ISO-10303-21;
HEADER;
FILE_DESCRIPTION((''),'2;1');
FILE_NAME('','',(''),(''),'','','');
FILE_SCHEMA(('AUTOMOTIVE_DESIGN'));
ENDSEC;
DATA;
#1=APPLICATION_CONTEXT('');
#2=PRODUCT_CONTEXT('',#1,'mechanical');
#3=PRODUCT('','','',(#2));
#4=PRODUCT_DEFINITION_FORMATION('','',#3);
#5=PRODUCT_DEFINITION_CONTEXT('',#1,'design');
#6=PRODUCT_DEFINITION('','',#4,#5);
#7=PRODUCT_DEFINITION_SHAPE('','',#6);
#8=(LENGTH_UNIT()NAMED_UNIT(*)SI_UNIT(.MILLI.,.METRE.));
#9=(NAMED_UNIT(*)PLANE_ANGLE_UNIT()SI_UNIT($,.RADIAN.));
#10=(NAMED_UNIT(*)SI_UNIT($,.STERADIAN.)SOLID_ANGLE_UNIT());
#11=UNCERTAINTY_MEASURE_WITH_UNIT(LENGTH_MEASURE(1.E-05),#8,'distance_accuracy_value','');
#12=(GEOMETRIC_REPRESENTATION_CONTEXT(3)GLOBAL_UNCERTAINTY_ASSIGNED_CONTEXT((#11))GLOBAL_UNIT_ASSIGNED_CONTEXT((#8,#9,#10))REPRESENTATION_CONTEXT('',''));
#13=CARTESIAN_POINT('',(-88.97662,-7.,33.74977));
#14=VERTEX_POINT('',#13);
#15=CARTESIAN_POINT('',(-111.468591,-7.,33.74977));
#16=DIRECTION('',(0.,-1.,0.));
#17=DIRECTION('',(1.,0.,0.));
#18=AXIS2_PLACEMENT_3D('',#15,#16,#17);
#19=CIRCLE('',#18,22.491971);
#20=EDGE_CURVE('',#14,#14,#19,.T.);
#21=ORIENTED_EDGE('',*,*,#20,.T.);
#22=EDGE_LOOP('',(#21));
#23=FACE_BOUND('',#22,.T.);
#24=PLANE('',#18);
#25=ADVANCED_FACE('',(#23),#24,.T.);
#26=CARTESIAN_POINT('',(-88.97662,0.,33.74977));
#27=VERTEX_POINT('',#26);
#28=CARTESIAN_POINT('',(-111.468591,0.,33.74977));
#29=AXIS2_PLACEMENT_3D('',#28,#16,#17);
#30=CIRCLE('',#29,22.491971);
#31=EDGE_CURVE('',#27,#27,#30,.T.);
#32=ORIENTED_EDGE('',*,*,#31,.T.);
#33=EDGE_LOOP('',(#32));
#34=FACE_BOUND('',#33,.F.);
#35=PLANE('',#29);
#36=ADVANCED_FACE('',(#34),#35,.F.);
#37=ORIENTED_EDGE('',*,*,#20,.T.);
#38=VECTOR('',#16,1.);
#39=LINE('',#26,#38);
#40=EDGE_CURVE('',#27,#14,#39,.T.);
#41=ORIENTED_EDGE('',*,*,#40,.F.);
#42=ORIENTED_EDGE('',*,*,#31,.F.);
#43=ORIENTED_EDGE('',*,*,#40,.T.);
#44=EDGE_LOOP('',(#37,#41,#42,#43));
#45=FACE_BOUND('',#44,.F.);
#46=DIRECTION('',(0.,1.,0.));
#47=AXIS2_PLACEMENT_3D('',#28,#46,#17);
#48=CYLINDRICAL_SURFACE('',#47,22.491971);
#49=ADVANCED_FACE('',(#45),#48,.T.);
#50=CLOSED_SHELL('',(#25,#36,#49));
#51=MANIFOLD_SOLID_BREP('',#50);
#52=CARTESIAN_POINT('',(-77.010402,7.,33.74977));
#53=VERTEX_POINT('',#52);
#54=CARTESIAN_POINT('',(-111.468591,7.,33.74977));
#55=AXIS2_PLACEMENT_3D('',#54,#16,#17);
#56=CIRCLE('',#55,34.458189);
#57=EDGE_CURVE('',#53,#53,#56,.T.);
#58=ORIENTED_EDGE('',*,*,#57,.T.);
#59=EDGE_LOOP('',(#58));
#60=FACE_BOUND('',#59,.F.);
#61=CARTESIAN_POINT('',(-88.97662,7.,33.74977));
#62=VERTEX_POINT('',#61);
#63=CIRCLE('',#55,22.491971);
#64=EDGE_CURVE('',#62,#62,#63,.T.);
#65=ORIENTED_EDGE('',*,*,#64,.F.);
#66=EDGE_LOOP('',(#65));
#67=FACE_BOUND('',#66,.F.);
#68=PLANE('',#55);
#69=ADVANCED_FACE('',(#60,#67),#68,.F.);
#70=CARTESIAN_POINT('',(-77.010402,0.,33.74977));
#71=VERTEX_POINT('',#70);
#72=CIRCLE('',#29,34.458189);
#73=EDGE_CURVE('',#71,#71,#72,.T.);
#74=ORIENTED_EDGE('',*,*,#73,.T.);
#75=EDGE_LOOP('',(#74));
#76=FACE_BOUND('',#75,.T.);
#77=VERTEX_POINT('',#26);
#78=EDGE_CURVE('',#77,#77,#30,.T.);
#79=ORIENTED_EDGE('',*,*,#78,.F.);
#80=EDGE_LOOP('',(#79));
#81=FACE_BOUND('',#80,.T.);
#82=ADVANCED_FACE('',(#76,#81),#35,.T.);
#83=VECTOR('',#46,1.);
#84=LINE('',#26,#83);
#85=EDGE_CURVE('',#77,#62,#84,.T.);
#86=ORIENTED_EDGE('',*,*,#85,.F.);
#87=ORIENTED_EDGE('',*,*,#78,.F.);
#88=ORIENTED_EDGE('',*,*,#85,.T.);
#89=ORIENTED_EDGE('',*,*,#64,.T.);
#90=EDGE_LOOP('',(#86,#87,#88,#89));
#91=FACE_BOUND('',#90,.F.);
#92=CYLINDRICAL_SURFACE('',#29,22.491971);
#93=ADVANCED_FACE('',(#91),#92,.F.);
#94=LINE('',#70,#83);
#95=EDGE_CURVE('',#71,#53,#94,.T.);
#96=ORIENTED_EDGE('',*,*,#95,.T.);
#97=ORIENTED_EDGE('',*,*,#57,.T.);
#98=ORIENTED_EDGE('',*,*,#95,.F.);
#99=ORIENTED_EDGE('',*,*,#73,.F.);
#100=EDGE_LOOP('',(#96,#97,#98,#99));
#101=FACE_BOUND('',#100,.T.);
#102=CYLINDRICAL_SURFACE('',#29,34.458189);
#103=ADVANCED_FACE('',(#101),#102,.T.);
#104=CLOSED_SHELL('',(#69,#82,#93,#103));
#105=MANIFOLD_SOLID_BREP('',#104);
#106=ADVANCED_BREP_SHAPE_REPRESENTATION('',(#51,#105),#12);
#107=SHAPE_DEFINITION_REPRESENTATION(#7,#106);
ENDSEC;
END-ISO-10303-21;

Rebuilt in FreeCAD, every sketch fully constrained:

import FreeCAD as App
import Part
import Sketcher

V = App.Vector
Q = App.Units.Quantity

doc = App.newDocument("Part")
body = doc.addObject("PartDesign::Body", "Body")

# Sketch on XZ plane
sketch1 = doc.addObject("Sketcher::SketchObject", "Sketch")
body.addObject(sketch1)
sketch1.AttachmentSupport = (doc.XZ_Plane, [""])
sketch1.MapMode = "FlatFace"
sketch1.addGeometry(Part.Circle(V(-111, 34, 0), V(0, 0, 1), 22), False)
sketch1.addConstraint([
    Sketcher.Constraint("Diameter", 0, Q("44.983942 mm")),
    Sketcher.Constraint("DistanceX", 0, 3, -1, 1, Q("111.468591 mm")),
    Sketcher.Constraint("DistanceY", -1, 1, 0, 3, Q("33.74977 mm")),
])
pad1 = doc.addObject("PartDesign::Pad", "Pad")
body.addObject(pad1)
pad1.Profile = sketch1
pad1.Length = 7
body2 = doc.addObject("PartDesign::Body", "Body001")

# Sketch on XZ plane
sketch2 = doc.addObject("Sketcher::SketchObject", "Sketch001")
body2.addObject(sketch2)
sketch2.AttachmentSupport = (doc.getObject("XZ_Plane001"), [""])
sketch2.MapMode = "FlatFace"
sketch2.addGeometry([
    Part.Circle(V(-111, 34, 0), V(0, 0, 1), 34),
    Part.Circle(V(-111, 34, 0), V(0, 0, 1), 22),
], False)
sketch2.addConstraint([
    Sketcher.Constraint("Coincident", 1, 3, 0, 3),
    Sketcher.Constraint("Diameter", 0, Q("68.916378 mm")),
    Sketcher.Constraint("Diameter", 1, Q("44.983942 mm")),
    Sketcher.Constraint("DistanceX", 0, 3, -1, 1, Q("111.468591 mm")),
    Sketcher.Constraint("DistanceY", -1, 1, 0, 3, Q("33.74977 mm")),
])
pad2 = doc.addObject("PartDesign::Pad", "Pad001")
body2.addObject(pad2)
pad2.Profile = sketch2
pad2.Length = 7
pad2.Reversed = True

doc.recompute()
